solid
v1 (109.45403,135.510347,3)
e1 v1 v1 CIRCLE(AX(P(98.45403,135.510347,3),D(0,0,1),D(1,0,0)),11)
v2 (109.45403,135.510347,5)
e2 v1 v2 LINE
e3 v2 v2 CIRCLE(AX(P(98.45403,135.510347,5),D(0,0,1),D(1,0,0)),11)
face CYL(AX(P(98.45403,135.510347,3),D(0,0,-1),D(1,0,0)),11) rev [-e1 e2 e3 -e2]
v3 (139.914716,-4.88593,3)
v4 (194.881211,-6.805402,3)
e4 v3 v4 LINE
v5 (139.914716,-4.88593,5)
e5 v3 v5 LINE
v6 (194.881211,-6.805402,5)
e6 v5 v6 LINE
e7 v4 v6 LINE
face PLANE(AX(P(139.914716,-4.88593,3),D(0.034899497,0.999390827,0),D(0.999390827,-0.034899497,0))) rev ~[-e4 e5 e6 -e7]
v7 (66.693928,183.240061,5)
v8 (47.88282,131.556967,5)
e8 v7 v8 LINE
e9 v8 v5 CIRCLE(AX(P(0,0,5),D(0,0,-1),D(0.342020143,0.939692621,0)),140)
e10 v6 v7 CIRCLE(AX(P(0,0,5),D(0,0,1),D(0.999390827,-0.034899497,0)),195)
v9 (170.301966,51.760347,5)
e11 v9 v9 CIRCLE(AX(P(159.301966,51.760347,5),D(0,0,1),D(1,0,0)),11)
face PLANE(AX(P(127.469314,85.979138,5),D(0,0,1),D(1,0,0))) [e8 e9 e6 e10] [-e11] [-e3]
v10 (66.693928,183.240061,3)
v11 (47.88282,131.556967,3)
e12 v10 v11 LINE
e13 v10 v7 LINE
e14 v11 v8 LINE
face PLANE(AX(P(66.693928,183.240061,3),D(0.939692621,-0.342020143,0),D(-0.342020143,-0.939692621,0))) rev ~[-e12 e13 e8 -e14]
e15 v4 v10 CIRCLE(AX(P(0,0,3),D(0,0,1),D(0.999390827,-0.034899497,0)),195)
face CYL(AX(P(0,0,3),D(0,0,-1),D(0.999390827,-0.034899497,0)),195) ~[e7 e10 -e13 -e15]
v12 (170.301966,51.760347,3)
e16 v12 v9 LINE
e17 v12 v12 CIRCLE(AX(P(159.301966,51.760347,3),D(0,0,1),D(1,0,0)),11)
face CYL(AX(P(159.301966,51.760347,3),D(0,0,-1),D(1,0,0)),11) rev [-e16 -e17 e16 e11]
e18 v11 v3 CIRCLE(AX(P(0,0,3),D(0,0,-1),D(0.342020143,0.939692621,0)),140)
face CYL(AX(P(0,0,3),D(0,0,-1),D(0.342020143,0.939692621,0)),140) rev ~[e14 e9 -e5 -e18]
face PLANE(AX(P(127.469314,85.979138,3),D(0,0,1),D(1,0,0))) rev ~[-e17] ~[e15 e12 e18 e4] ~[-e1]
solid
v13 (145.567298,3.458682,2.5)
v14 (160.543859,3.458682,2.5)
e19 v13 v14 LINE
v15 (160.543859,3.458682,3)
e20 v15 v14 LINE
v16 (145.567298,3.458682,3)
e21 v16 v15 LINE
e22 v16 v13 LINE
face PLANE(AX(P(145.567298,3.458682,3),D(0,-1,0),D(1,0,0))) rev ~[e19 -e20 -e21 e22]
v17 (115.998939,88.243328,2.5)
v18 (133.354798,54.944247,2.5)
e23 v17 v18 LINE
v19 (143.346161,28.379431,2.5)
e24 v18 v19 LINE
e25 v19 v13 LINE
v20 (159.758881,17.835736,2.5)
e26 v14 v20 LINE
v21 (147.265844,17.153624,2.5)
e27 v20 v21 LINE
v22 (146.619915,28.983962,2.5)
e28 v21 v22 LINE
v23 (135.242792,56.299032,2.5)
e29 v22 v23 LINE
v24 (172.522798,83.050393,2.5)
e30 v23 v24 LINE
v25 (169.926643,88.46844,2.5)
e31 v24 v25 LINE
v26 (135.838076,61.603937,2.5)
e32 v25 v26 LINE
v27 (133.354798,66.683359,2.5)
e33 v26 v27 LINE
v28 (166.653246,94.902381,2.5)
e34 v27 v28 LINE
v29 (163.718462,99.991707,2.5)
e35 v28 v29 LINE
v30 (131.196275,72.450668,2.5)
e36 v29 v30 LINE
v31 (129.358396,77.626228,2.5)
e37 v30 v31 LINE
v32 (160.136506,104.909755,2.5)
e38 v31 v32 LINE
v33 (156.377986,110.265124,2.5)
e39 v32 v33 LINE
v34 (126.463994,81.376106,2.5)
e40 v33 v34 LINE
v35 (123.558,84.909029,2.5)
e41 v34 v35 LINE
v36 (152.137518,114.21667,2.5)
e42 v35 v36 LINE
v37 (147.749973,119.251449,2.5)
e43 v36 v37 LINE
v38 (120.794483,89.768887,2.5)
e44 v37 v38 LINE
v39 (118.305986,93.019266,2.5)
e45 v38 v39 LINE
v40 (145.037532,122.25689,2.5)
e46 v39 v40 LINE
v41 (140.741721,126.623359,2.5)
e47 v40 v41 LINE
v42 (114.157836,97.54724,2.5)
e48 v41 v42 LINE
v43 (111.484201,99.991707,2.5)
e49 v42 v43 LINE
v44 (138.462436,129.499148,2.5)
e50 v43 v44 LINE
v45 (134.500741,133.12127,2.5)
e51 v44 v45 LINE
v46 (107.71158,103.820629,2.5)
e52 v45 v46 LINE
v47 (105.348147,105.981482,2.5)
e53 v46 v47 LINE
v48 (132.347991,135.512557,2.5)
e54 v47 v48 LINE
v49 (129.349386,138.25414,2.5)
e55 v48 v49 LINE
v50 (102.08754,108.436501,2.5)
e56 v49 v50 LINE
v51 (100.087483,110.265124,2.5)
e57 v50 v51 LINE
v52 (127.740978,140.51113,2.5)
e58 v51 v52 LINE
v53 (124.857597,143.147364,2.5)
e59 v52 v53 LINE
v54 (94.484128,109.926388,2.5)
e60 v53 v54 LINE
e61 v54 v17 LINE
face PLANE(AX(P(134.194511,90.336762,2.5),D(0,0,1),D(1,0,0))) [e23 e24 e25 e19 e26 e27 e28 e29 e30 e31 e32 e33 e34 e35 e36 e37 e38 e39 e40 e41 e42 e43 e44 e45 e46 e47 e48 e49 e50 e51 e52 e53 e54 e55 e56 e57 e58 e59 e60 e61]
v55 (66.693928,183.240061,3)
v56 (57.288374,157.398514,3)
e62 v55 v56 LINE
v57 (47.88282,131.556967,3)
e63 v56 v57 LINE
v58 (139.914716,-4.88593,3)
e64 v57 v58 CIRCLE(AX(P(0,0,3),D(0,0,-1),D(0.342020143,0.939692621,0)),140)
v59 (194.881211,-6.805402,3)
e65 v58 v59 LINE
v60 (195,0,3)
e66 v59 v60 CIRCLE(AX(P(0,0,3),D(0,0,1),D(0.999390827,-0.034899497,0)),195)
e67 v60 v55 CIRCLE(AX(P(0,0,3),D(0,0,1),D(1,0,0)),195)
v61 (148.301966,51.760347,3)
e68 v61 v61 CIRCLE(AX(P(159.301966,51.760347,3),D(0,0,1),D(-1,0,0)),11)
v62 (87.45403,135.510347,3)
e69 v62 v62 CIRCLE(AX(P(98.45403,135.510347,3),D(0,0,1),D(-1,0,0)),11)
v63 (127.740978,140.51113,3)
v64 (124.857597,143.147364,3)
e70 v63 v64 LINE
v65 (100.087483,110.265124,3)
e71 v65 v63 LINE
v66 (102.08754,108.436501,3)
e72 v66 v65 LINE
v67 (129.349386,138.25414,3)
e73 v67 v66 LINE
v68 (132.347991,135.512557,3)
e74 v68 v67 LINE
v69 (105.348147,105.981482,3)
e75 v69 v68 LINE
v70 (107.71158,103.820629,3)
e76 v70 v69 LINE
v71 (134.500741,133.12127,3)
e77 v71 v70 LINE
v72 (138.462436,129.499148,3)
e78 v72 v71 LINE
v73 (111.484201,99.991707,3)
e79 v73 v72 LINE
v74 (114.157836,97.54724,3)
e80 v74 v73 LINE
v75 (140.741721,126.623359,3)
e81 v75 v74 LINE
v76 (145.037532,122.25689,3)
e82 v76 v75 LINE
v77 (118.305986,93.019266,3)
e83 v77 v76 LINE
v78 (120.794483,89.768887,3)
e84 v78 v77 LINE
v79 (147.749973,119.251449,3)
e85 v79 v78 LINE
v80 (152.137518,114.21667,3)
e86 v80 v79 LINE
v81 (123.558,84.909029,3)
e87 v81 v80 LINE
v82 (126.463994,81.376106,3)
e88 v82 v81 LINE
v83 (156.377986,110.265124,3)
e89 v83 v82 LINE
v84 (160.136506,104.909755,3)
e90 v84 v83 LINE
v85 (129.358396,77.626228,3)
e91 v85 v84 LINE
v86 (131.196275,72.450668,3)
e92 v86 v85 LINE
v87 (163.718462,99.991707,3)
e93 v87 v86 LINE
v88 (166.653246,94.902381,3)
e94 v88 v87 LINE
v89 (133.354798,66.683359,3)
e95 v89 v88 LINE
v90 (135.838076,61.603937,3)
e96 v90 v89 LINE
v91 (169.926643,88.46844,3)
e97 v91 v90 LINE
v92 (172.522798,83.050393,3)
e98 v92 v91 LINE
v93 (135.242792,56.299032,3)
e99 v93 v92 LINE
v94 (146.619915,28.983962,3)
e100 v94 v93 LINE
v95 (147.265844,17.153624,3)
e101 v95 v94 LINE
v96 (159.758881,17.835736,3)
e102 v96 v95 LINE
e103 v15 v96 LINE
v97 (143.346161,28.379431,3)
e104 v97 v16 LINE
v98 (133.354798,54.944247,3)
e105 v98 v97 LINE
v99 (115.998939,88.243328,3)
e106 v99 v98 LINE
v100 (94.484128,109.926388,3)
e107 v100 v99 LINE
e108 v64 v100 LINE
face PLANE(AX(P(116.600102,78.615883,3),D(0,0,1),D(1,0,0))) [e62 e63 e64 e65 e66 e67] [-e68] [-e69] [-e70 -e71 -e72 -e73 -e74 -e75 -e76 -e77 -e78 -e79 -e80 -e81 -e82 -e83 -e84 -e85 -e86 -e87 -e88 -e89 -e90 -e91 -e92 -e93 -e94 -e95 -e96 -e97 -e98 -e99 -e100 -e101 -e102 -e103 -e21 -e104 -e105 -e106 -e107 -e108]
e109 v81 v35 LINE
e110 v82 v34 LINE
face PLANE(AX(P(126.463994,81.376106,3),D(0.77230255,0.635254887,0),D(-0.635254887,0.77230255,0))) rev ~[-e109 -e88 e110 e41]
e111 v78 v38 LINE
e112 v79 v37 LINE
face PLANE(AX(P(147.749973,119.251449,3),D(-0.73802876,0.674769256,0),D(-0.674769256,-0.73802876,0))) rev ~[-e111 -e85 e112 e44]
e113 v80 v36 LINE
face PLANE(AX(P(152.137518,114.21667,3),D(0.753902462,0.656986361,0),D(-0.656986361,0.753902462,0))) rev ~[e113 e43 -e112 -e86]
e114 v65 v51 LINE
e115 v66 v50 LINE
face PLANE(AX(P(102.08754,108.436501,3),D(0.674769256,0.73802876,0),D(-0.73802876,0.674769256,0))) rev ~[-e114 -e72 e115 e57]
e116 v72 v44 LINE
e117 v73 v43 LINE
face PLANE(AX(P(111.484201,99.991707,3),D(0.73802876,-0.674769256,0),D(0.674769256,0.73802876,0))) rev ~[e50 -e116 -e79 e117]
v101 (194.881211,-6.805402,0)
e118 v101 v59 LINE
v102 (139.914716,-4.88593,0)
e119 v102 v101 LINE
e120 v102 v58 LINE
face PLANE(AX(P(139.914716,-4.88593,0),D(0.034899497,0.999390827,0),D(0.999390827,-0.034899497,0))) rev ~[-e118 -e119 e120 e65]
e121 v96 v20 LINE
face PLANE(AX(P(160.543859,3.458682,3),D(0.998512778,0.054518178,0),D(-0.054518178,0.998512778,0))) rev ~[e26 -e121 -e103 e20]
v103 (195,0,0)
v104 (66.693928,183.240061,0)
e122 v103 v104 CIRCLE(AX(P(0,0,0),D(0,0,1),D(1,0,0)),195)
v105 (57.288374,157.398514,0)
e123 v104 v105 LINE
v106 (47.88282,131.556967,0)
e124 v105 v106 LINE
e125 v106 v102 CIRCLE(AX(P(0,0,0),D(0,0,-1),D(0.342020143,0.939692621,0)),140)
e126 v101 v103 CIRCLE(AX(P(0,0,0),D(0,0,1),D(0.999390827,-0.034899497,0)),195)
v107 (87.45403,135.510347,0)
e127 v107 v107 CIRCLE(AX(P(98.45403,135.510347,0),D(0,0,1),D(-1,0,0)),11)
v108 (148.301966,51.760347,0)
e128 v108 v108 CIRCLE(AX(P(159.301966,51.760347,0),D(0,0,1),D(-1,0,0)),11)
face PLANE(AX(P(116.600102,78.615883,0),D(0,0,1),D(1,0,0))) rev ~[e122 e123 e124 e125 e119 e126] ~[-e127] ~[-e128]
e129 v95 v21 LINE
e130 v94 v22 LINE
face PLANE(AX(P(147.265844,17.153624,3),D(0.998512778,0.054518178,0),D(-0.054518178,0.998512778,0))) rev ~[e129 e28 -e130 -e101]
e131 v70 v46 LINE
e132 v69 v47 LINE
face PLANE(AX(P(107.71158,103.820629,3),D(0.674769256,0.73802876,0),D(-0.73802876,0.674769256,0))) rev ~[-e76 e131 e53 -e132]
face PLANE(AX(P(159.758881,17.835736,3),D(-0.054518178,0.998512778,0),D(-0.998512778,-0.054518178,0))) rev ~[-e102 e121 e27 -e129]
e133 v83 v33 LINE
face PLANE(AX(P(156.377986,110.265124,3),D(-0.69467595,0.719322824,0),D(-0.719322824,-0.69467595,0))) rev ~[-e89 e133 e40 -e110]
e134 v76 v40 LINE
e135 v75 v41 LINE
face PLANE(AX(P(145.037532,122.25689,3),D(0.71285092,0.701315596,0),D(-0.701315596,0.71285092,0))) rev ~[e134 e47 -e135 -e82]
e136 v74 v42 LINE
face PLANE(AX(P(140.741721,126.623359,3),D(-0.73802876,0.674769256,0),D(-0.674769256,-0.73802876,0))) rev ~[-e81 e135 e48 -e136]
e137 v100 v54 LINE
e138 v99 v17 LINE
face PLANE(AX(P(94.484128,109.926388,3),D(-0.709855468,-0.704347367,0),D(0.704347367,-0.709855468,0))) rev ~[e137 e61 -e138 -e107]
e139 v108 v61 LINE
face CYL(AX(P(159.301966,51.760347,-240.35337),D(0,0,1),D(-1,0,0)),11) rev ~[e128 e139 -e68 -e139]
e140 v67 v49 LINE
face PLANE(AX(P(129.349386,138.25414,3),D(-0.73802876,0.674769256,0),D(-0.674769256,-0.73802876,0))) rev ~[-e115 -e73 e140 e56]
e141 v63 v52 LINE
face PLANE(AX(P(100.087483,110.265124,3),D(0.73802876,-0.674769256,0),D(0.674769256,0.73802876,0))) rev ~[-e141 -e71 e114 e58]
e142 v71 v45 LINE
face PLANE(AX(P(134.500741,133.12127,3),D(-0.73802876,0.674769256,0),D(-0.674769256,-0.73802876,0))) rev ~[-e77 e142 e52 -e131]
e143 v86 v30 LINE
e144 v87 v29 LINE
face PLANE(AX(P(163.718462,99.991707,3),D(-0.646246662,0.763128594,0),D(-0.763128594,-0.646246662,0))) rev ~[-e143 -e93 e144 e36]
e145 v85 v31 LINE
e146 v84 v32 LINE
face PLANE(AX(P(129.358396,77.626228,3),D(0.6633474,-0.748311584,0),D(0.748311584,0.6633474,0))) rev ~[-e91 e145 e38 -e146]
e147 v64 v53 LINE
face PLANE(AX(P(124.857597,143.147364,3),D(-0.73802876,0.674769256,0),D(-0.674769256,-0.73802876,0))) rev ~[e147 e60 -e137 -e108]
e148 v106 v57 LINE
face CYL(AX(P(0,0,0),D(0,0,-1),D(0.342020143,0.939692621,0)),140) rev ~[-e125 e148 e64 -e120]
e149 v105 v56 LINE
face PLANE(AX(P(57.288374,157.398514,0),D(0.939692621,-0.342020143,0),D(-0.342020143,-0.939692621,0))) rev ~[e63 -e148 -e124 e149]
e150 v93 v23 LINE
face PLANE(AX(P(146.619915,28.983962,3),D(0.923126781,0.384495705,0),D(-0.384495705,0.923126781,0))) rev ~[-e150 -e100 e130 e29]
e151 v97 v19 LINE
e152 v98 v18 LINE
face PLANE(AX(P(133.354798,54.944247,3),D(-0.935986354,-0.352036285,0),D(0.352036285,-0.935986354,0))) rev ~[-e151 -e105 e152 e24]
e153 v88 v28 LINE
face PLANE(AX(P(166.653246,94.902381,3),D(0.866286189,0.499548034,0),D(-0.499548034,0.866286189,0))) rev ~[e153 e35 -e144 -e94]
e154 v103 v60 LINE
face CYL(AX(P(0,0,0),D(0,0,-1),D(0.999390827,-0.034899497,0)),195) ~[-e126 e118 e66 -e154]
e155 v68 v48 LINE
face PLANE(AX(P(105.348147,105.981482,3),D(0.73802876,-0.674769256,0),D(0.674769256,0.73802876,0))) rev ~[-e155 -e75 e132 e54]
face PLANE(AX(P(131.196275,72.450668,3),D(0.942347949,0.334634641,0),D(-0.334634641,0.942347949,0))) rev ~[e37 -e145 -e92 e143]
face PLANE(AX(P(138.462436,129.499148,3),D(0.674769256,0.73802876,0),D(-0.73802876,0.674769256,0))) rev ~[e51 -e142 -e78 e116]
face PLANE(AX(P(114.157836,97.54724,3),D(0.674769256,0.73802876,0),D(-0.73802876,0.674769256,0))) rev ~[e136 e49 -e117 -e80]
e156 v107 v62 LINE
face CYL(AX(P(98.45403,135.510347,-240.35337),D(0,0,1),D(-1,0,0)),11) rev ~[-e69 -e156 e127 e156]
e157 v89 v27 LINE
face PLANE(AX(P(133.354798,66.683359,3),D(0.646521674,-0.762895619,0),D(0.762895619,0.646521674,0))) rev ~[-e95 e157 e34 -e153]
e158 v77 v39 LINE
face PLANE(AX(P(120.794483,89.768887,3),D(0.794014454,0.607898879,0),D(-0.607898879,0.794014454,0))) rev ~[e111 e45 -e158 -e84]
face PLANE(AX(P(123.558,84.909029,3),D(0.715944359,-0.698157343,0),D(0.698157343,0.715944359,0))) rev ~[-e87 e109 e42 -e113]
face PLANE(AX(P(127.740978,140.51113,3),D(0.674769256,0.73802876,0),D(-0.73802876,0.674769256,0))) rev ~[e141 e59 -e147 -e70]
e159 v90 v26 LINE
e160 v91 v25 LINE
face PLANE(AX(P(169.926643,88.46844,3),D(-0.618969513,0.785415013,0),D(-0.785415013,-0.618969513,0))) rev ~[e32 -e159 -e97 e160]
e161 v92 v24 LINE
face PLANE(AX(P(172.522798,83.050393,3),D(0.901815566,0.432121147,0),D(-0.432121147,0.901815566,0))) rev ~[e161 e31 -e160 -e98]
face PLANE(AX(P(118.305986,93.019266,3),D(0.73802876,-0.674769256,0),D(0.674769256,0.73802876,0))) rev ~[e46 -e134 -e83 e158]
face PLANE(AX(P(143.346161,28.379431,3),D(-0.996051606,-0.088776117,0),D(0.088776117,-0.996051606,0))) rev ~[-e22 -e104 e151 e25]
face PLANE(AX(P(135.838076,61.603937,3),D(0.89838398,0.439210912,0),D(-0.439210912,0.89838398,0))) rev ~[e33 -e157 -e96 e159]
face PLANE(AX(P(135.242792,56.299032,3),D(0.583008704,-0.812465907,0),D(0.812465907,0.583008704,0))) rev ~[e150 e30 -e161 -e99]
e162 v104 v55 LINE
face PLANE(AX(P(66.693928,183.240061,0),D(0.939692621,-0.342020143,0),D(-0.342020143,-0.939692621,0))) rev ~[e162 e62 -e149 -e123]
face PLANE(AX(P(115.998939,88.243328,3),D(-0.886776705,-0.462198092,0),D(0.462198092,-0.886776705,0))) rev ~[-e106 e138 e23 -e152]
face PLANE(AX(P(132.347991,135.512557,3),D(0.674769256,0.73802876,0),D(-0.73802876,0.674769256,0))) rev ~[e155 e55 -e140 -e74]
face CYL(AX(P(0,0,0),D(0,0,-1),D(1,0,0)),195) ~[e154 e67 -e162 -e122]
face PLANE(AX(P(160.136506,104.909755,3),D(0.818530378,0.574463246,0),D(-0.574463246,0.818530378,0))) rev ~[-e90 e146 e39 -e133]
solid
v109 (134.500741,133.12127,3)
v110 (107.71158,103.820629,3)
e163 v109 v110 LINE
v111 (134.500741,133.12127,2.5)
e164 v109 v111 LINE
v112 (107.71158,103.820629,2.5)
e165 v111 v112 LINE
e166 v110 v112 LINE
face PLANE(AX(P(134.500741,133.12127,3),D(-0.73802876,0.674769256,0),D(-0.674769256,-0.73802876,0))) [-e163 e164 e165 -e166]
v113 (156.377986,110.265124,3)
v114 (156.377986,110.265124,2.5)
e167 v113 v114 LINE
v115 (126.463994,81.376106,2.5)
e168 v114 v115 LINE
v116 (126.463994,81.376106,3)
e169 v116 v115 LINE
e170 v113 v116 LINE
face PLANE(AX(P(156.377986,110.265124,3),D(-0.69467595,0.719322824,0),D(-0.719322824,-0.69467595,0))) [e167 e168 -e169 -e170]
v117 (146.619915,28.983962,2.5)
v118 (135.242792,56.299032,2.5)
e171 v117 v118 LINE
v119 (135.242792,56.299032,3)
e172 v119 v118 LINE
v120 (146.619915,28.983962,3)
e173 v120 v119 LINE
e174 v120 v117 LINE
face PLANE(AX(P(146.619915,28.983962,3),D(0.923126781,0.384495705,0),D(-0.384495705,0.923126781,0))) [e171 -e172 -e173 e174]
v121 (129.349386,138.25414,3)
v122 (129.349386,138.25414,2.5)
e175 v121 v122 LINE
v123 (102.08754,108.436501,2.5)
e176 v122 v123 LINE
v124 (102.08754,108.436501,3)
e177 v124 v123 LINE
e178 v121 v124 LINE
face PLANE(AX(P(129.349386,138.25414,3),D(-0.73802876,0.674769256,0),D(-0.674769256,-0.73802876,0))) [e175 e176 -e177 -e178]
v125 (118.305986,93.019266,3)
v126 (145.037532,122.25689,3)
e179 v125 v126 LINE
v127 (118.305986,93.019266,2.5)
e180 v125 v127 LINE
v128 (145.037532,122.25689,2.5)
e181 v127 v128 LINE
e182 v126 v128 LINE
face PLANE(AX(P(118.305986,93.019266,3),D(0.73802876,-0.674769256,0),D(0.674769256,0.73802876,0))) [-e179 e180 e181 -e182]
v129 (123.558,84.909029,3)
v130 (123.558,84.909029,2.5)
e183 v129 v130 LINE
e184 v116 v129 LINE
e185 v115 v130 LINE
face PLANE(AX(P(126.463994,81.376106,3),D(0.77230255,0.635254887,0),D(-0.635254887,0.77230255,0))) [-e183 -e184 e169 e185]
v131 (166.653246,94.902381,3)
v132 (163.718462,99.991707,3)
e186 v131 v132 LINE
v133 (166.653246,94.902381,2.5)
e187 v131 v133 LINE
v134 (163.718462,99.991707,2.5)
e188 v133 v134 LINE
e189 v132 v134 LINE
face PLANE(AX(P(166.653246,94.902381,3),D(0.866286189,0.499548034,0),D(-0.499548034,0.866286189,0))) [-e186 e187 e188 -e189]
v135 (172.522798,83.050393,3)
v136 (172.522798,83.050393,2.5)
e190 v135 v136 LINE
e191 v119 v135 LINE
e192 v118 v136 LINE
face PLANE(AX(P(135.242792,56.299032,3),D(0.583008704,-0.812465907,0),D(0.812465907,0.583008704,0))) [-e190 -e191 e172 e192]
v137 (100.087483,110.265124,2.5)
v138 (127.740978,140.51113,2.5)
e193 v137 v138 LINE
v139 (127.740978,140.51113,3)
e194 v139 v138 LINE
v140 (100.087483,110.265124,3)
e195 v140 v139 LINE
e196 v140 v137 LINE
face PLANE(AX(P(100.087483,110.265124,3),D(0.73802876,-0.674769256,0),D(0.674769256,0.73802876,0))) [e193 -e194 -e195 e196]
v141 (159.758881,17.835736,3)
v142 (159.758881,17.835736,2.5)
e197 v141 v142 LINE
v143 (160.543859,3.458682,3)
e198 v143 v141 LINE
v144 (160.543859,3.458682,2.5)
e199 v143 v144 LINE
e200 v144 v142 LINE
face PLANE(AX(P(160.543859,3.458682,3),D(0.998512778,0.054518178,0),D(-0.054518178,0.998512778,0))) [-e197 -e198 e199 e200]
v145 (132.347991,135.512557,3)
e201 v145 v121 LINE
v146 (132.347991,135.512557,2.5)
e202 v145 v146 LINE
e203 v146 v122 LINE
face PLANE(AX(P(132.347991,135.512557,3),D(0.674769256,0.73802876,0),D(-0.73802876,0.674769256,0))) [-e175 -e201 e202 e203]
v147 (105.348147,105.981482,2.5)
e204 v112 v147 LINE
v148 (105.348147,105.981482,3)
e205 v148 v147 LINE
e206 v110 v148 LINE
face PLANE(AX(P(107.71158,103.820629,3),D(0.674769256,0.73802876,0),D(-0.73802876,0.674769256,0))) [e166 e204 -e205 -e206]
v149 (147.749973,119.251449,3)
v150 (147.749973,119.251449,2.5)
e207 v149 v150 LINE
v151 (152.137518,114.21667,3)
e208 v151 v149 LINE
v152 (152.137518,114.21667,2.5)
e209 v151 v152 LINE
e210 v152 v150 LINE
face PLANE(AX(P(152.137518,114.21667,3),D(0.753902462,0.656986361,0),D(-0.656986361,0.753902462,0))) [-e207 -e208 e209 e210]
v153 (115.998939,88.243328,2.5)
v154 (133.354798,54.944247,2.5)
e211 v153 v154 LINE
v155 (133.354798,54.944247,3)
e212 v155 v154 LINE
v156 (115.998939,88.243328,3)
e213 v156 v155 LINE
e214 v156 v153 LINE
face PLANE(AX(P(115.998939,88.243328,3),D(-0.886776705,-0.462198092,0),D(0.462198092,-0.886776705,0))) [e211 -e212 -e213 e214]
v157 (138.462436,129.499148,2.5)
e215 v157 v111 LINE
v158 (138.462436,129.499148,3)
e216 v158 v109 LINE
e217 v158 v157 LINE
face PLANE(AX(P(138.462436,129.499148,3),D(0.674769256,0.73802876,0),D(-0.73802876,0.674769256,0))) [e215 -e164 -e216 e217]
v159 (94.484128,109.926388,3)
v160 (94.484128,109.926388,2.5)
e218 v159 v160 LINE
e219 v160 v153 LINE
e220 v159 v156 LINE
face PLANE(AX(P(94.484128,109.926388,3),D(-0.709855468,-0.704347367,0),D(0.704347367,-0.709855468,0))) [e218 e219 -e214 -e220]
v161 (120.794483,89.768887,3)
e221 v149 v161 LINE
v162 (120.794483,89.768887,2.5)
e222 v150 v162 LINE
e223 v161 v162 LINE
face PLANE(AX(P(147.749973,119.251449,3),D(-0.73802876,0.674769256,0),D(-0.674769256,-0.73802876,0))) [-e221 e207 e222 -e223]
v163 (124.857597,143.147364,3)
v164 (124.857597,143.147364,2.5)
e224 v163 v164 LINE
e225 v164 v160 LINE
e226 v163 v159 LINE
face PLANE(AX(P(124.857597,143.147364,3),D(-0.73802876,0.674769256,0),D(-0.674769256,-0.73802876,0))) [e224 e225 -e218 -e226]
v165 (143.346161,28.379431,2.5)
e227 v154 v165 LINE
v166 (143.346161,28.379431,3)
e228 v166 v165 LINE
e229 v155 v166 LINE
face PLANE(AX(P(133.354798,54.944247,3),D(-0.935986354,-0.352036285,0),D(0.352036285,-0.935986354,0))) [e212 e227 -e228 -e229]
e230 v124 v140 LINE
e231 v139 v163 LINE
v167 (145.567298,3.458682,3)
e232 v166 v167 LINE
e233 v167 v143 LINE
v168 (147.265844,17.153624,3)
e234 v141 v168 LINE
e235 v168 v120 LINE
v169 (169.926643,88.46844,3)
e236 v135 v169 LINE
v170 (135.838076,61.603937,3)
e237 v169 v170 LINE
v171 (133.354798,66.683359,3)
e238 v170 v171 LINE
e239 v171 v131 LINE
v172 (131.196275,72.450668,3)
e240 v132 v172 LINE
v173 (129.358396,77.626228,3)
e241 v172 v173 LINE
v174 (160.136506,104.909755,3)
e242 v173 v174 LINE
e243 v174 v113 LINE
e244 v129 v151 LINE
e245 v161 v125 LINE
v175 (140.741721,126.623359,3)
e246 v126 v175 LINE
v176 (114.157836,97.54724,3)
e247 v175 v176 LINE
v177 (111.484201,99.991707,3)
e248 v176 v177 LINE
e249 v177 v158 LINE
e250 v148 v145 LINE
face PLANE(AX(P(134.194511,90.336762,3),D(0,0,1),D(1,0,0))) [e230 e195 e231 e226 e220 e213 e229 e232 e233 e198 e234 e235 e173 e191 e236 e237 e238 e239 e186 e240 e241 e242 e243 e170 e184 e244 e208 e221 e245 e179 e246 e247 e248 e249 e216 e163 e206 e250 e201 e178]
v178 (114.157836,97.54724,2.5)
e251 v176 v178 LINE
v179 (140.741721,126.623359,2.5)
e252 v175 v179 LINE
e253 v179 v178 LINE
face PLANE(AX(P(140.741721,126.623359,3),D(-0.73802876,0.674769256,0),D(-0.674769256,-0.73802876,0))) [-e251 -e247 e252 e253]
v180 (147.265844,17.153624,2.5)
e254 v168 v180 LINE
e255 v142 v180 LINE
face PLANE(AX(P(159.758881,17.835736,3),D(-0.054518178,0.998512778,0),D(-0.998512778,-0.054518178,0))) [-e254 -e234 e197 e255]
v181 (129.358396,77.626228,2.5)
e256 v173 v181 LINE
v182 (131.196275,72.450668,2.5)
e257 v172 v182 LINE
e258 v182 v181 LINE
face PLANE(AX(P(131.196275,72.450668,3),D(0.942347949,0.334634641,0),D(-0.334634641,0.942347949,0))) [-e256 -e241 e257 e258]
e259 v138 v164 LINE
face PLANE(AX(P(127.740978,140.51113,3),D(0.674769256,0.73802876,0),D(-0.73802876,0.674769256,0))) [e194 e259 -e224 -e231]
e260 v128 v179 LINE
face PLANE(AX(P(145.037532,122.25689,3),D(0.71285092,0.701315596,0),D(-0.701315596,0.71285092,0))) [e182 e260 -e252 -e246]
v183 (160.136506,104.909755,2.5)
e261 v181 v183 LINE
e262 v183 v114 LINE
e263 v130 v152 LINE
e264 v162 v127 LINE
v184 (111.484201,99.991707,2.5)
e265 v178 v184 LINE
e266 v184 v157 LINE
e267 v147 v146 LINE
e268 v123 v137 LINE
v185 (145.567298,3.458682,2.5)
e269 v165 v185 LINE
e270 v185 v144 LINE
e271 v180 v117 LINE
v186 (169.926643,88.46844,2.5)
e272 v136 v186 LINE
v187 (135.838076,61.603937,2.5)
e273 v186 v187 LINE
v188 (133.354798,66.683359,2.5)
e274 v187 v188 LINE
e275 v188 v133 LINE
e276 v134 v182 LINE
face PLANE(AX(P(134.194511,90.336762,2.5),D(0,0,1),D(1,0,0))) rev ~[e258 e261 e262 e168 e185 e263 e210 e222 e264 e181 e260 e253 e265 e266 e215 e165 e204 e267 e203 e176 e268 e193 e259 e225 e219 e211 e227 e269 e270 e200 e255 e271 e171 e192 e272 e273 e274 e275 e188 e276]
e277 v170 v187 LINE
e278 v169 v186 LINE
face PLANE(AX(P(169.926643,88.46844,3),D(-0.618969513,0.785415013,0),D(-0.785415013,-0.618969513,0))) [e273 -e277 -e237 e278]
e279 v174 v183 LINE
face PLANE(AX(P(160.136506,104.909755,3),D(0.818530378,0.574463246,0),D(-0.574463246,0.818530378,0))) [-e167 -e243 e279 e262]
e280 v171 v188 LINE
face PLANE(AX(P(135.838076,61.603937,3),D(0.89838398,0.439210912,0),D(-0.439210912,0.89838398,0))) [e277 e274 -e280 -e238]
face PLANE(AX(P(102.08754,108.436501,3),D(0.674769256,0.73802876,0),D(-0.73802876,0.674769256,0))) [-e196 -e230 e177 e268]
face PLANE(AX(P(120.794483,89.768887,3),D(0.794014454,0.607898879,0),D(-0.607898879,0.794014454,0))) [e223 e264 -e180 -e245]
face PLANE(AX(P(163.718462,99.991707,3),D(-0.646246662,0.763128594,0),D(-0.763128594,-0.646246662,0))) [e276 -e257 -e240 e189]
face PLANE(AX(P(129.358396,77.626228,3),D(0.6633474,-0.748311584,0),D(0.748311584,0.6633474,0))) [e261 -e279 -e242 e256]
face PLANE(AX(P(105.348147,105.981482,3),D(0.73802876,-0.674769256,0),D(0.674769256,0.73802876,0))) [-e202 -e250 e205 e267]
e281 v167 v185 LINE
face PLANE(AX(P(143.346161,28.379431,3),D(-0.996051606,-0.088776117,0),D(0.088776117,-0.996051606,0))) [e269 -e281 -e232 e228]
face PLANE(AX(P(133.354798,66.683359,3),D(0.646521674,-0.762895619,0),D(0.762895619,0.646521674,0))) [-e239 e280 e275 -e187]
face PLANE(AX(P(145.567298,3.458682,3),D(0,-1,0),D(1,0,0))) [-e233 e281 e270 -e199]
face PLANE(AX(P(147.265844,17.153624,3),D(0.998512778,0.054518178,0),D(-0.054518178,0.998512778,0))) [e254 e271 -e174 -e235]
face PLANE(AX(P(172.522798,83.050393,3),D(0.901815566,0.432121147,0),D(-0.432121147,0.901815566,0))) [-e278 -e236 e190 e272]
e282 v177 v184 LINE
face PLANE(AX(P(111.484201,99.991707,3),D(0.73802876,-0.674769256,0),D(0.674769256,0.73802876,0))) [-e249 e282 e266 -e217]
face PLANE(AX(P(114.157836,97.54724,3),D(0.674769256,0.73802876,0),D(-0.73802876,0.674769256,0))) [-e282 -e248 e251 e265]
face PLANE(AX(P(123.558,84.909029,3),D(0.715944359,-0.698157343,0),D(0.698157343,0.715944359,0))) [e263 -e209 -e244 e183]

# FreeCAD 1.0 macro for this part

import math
import FreeCAD as App
import Part
import Sketcher

V = App.Vector
Q = App.Units.Quantity


def add_polygon(sketch, points):
    """Adds a closed chain of lines whose ends are joined by coincident constraints."""
    first, n = sketch.GeometryCount, len(points)
    for a, b in zip(points, points[1:] + points[:1]):
        sketch.addGeometry(Part.LineSegment(App.Vector(*a, 0), App.Vector(*b, 0)), False)
    for i in range(n):
        sketch.addConstraint(Sketcher.Constraint("Coincident", first + i, 2, first + (i + 1) % n, 1))

doc = App.newDocument("Part")
body = doc.addObject("PartDesign::Body", "Body")

# Sketch on XY plane
sketch1 = doc.addObject("Sketcher::SketchObject", "Sketch")
body.addObject(sketch1)
sketch1.AttachmentSupport = (doc.XY_Plane, [""])
sketch1.MapMode = "FlatFace"
sketch1.addGeometry(Part.LineSegment(V(57, 157, 0), V(48, 132, 0)), False)
sketch1.addGeometry(Part.ArcOfCircle(Part.Circle(V(0, 0, 0), V(0, 0, 1), 140), math.radians(-2), math.radians(70)), False)
sketch1.addGeometry(Part.LineSegment(V(140, -5, 0), V(195, -7, 0)), False)
sketch1.addGeometry(Part.ArcOfCircle(Part.Circle(V(0, 0, 0), V(0, 0, 1), 195), math.radians(-2), math.radians(0)), False)
sketch1.addGeometry(Part.ArcOfCircle(Part.Circle(V(0, 0, 0), V(0, 0, 1), 195), math.radians(0), math.radians(70)), False)
sketch1.addGeometry(Part.LineSegment(V(67, 183, 0), V(57, 157, 0)), False)
sketch1.addConstraint(Sketcher.Constraint("Coincident", 0, 2, 1, 2))
sketch1.addConstraint(Sketcher.Constraint("Coincident", 1, 1, 2, 1))
sketch1.addConstraint(Sketcher.Constraint("Coincident", 2, 2, 3, 1))
sketch1.addConstraint(Sketcher.Constraint("Tangent", 3, 2, 4, 1))
sketch1.addConstraint(Sketcher.Constraint("Coincident", 4, 2, 5, 1))
sketch1.addConstraint(Sketcher.Constraint("Coincident", 5, 2, 0, 1))
sketch1.addConstraint(Sketcher.Constraint("Coincident", 1, 3, -1, 1))
sketch1.addConstraint(Sketcher.Constraint("Coincident", 3, 3, -1, 1))
sketch1.addConstraint(Sketcher.Constraint("Equal", 3, 4))
sketch1.addConstraint(Sketcher.Constraint("PointOnObject", 3, 2, -1))
sketch1.addConstraint(Sketcher.Constraint("Parallel", 0, 5))
sketch1.addConstraint(Sketcher.Constraint("Equal", 0, 5))
sketch1.addConstraint(Sketcher.Constraint("Radius", 1, 140.0))
sketch1.addConstraint(Sketcher.Constraint("Radius", 3, 195.0))
sketch1.addConstraint(Sketcher.Constraint("Angle", 0, Q("-110 deg")))
sketch1.addConstraint(Sketcher.Constraint("Angle", 2, Q("-2 deg")))
sketch1.addConstraint(Sketcher.Constraint("DistanceY", 2, 2, -1, 1, 6.805402))
sketch1.addConstraint(Sketcher.Constraint("DistanceX", -1, 1, 0, 2, 47.88282))
pad1 = doc.addObject("PartDesign::Pad", "Pad")
body.addObject(pad1)
pad1.Profile = sketch1
pad1.Length = 3

# Sketch on XY plane
sketch2 = doc.addObject("Sketcher::SketchObject", "Sketch001")
body.addObject(sketch2)
sketch2.AttachmentSupport = (doc.XY_Plane, [""])
sketch2.MapMode = "FlatFace"
sketch2.addGeometry(Part.Circle(V(98, 136, 0), V(0, 0, 1), 11), False)
sketch2.addGeometry(Part.Circle(V(159, 52, 0), V(0, 0, 1), 11), False)
sketch2.addGeometry(Part.Circle(V(159, -52, 0), V(0, 0, 1), 11), False)
sketch2.addConstraint(Sketcher.Constraint("Equal", 0, 1))
sketch2.addConstraint(Sketcher.Constraint("Equal", 1, 2))
sketch2.addConstraint(Sketcher.Constraint("Symmetric", 1, 3, 2, 3, -1))
sketch2.addConstraint(Sketcher.Constraint("Diameter", 0, 22.0))
sketch2.addConstraint(Sketcher.Constraint("DistanceY", 1, 3, 0, 3, 83.75))
sketch2.addConstraint(Sketcher.Constraint("DistanceX", -1, 1, 0, 3, 98.45403))
sketch2.addConstraint(Sketcher.Constraint("DistanceY", -1, 1, 0, 3, 135.510347))
sketch2.addConstraint(Sketcher.Constraint("DistanceX", -1, 1, 1, 3, 159.301966))
doc.recompute()
hole = doc.addObject("PartDesign::Hole", "Hole")
body.addObject(hole)
hole.Profile = sketch2
hole.ThreadType = "None"
hole.Diameter = 22
hole.DepthType = "ThroughAll"
hole.Reversed = True

# Sketch on XY plane
sketch3 = doc.addObject("Sketcher::SketchObject", "Sketch002")
body.addObject(sketch3)
sketch3.AttachmentSupport = (doc.XY_Plane, [""])
sketch3.MapMode = "FlatFace"
sketch3.AttachmentOffset = App.Placement(V(0, 0, 3), App.Rotation())
add_polygon(sketch3, [(124.9, 143.1), (94.5, 109.9), (116, 88.2), (133.4, 54.9), (143.3, 28.4), (145.6, 3.5), (160.5, 3.5), (159.8, 17.8), (147.3, 17.2), (146.6, 29), (135.2, 56.3), (172.5, 83.1), (169.9, 88.5), (135.8, 61.6), (133.4, 66.7), (166.7, 94.9), (163.7, 100), (131.2, 72.5), (129.4, 77.6), (160.1, 104.9), (156.4, 110.3), (126.5, 81.4), (123.6, 84.9), (152.1, 114.2), (147.7, 119.3), (120.8, 89.8), (118.3, 93), (145, 122.3), (140.7, 126.6), (114.2, 97.5), (111.5, 100), (138.5, 129.5), (134.5, 133.1), (107.7, 103.8), (105.3, 106), (132.3, 135.5), (129.3, 138.3), (102.1, 108.4), (100.1, 110.3), (127.7, 140.5)])  # lines 0-39
sketch3.addConstraint(Sketcher.Constraint("Horizontal", 5))
sketch3.addConstraint(Sketcher.Constraint("Perpendicular", 6, 7))
sketch3.addConstraint(Sketcher.Constraint("Perpendicular", 7, 8))
sketch3.addConstraint(Sketcher.Constraint("Parallel", 0, 24))
sketch3.addConstraint(Sketcher.Constraint("Parallel", 24, 26))
sketch3.addConstraint(Sketcher.Constraint("Parallel", 26, 28))
sketch3.addConstraint(Sketcher.Constraint("Perpendicular", 28, 29))
sketch3.addConstraint(Sketcher.Constraint("Perpendicular", 29, 30))
sketch3.addConstraint(Sketcher.Constraint("Perpendicular", 30, 31))
sketch3.addConstraint(Sketcher.Constraint("Perpendicular", 31, 32))
sketch3.addConstraint(Sketcher.Constraint("Perpendicular", 32, 33))
sketch3.addConstraint(Sketcher.Constraint("Perpendicular", 33, 34))
sketch3.addConstraint(Sketcher.Constraint("Perpendicular", 34, 35))
sketch3.addConstraint(Sketcher.Constraint("Perpendicular", 35, 36))
sketch3.addConstraint(Sketcher.Constraint("Perpendicular", 36, 37))
sketch3.addConstraint(Sketcher.Constraint("Perpendicular", 37, 38))
sketch3.addConstraint(Sketcher.Constraint("Perpendicular", 38, 39))
sketch3.addConstraint(Sketcher.Constraint("Horizontal", 15, 2, 29, 2))
sketch3.addConstraint(Sketcher.Constraint("Horizontal", 19, 2, 37, 2))
sketch3.addConstraint(Sketcher.Constraint("Vertical", 2, 2, 13, 2))
sketch3.addConstraint(Sketcher.Constraint("Distance", 37, 2.709998))
sketch3.addConstraint(Sketcher.Constraint("Distance", 28, 39.397))
sketch3.addConstraint(Sketcher.Constraint("DistanceX", -1, 1, 21, 2, 123.558))
sketch3.addConstraint(Sketcher.Constraint("DistanceX", 2, 2, 10, 2, 39.168))
sketch3.addConstraint(Sketcher.Constraint("DistanceX", 5, 1, 5, 2, 14.976561))
sketch3.addConstraint(Sketcher.Constraint("DistanceX", -1, 1, 10, 2, 172.522798))
sketch3.addConstraint(Sketcher.Constraint("DistanceX", -1, 1, 29, 2, 111.484201))
sketch3.addConstraint(Sketcher.Constraint("DistanceY", -1, 1, 36, 2, 108.436501))
sketch3.addConstraint(Sketcher.Constraint("DistanceX", 2, 2, 4, 2, 12.2125))
sketch3.addConstraint(Sketcher.Constraint("DistanceX", 3, 2, 5, 2, 17.197698))
sketch3.addConstraint(Sketcher.Constraint("DistanceY", 3, 2, 9, 2, 27.919601))
sketch3.addConstraint(Sketcher.Constraint("DistanceX", 16, 2, 12, 2, 4.641801))
sketch3.addConstraint(Sketcher.Constraint("DistanceY", 17, 2, 1, 2, 10.6171))
sketch3.addConstraint(Sketcher.Constraint("DistanceX", 20, 2, 17, 2, 2.894402))
sketch3.addConstraint(Sketcher.Constraint("DistanceY", 21, 2, 1, 2, 3.334299))
sketch3.addConstraint(Sketcher.Constraint("DistanceY", 23, 2, 30, 2, 10.247698))
sketch3.addConstraint(Sketcher.Constraint("DistanceY", 22, 2, 31, 2, 18.904599))
sketch3.addConstraint(Sketcher.Constraint("DistanceY", 1, 2, 32, 2, 15.577301))
sketch3.addConstraint(Sketcher.Constraint("DistanceY", 27, 2, 34, 2, 8.889198))
sketch3.addConstraint(Sketcher.Constraint("Distance", 0, 45.013119))
sketch3.addConstraint(Sketcher.Constraint("Distance", 1, 30.545739))
sketch3.addConstraint(Sketcher.Constraint("Distance", 6, 14.398468))
sketch3.addConstraint(Sketcher.Constraint("Distance", 8, 11.847958))
sketch3.addConstraint(Sketcher.Constraint("Distance", 10, 45.88501))
sketch3.addConstraint(Sketcher.Constraint("Distance", 12, 43.40198))
sketch3.addConstraint(Sketcher.Constraint("Distance", 14, 43.647449))
sketch3.addConstraint(Sketcher.Constraint("Distance", 22, 40.935641))
sketch3.addConstraint(Sketcher.Constraint("Distance", 23, 6.67829))
sketch3.addConstraint(Sketcher.Constraint("Distance", 27, 6.125361))
sketch3.addConstraint(Sketcher.Constraint("Distance", 29, 3.622671))
sketch3.addConstraint(Sketcher.Constraint("Distance", 31, 5.367942))
sketch3.addConstraint(Sketcher.Constraint("Distance", 33, 3.202358))
sketch3.addConstraint(Sketcher.Constraint("Distance", 36, 40.401731))
sketch3.addConstraint(Sketcher.Constraint("Distance", 38, 40.98215))
sketch3.addConstraint(Sketcher.Constraint("Distance", 39, 3.906868))
sketch3.addConstraint(Sketcher.Constraint("DistanceX", -1, 1, 0, 2, 94.484128))
sketch3.addConstraint(Sketcher.Constraint("DistanceX", -1, 1, 1, 2, 115.998939))
sketch3.addConstraint(Sketcher.Constraint("DistanceY", -1, 1, 1, 2, 88.243328))
sketch3.addConstraint(Sketcher.Constraint("DistanceY", -1, 1, 3, 2, 28.379431))
sketch3.addConstraint(Sketcher.Constraint("DistanceY", -1, 1, 4, 2, 3.458682))
sketch3.addConstraint(Sketcher.Constraint("DistanceX", -1, 1, 6, 2, 159.758881))
sketch3.addConstraint(Sketcher.Constraint("DistanceX", -1, 1, 9, 2, 135.242792))
sketch3.addConstraint(Sketcher.Constraint("DistanceY", -1, 1, 11, 2, 88.46844))
sketch3.addConstraint(Sketcher.Constraint("DistanceY", -1, 1, 13, 2, 66.683359))
sketch3.addConstraint(Sketcher.Constraint("DistanceY", -1, 1, 14, 2, 94.902381))
sketch3.addConstraint(Sketcher.Constraint("DistanceX", -1, 1, 15, 2, 163.718462))
sketch3.addConstraint(Sketcher.Constraint("DistanceY", -1, 1, 22, 2, 114.21667))
sketch3.addConstraint(Sketcher.Constraint("DistanceX", -1, 1, 26, 2, 145.037532))
sketch3.addConstraint(Sketcher.Constraint("DistanceY", 2, 2, 1, 2, 33.299081))
sketch3.addConstraint(Sketcher.Constraint("DistanceY", 3, 2, 8, 2, 0.604531))
sketch3.addConstraint(Sketcher.Constraint("DistanceX", 9, 2, 11, 2, 34.683852))
sketch3.addConstraint(Sketcher.Constraint("DistanceX", 2, 2, 12, 2, 2.483279))
sketch3.addConstraint(Sketcher.Constraint("DistanceY", 13, 2, 16, 2, 5.767308))
sketch3.addConstraint(Sketcher.Constraint("DistanceX", 17, 2, 16, 2, 1.837879))
sketch3.addConstraint(Sketcher.Constraint("DistanceY", 15, 2, 18, 2, 4.918048))
sketch3.addConstraint(Sketcher.Constraint("DistanceX", 18, 2, 14, 2, 6.51674))
sketch3.addConstraint(Sketcher.Constraint("DistanceX", 19, 2, 18, 2, 3.75852))
sketch3.addConstraint(Sketcher.Constraint("DistanceY", 12, 2, 20, 2, 19.772168))
sketch3.addConstraint(Sketcher.Constraint("DistanceY", 1, 2, 24, 2, 1.525559))
sketch3.addConstraint(Sketcher.Constraint("DistanceY", 24, 2, 25, 2, 3.25038))
pocket1 = doc.addObject("PartDesign::Pocket", "Pocket")
body.addObject(pocket1)
pocket1.Profile = sketch3
pocket1.Length = 0.5
body2 = doc.addObject("PartDesign::Body", "Body001")

# Sketch on XY plane
sketch4 = doc.addObject("Sketcher::SketchObject", "Sketch003")
body2.addObject(sketch4)
sketch4.AttachmentSupport = (doc.getObject("XY_Plane001"), [""])
sketch4.MapMode = "FlatFace"
sketch4.AttachmentOffset = App.Placement(V(0, 0, 3), App.Rotation())
add_polygon(sketch4, [(124.9, 143.1), (94.5, 109.9), (116, 88.2), (133.4, 54.9), (143.3, 28.4), (145.6, 3.5), (160.5, 3.5), (159.8, 17.8), (147.3, 17.2), (146.6, 29), (135.2, 56.3), (172.5, 83.1), (169.9, 88.5), (135.8, 61.6), (133.4, 66.7), (166.7, 94.9), (163.7, 100), (131.2, 72.5), (129.4, 77.6), (160.1, 104.9), (156.4, 110.3), (126.5, 81.4), (123.6, 84.9), (152.1, 114.2), (147.7, 119.3), (120.8, 89.8), (118.3, 93), (145, 122.3), (140.7, 126.6), (114.2, 97.5), (111.5, 100), (138.5, 129.5), (134.5, 133.1), (107.7, 103.8), (105.3, 106), (132.3, 135.5), (129.3, 138.3), (102.1, 108.4), (100.1, 110.3), (127.7, 140.5)])  # lines 0-39
sketch4.addConstraint(Sketcher.Constraint("Horizontal", 5))
sketch4.addConstraint(Sketcher.Constraint("Perpendicular", 6, 7))
sketch4.addConstraint(Sketcher.Constraint("Perpendicular", 7, 8))
sketch4.addConstraint(Sketcher.Constraint("Parallel", 0, 24))
sketch4.addConstraint(Sketcher.Constraint("Parallel", 24, 26))
sketch4.addConstraint(Sketcher.Constraint("Parallel", 26, 28))
sketch4.addConstraint(Sketcher.Constraint("Perpendicular", 28, 29))
sketch4.addConstraint(Sketcher.Constraint("Perpendicular", 29, 30))
sketch4.addConstraint(Sketcher.Constraint("Perpendicular", 30, 31))
sketch4.addConstraint(Sketcher.Constraint("Perpendicular", 31, 32))
sketch4.addConstraint(Sketcher.Constraint("Perpendicular", 32, 33))
sketch4.addConstraint(Sketcher.Constraint("Perpendicular", 33, 34))
sketch4.addConstraint(Sketcher.Constraint("Perpendicular", 34, 35))
sketch4.addConstraint(Sketcher.Constraint("Perpendicular", 35, 36))
sketch4.addConstraint(Sketcher.Constraint("Perpendicular", 36, 37))
sketch4.addConstraint(Sketcher.Constraint("Perpendicular", 37, 38))
sketch4.addConstraint(Sketcher.Constraint("Perpendicular", 38, 39))
sketch4.addConstraint(Sketcher.Constraint("Horizontal", 15, 2, 29, 2))
sketch4.addConstraint(Sketcher.Constraint("Horizontal", 19, 2, 37, 2))
sketch4.addConstraint(Sketcher.Constraint("Vertical", 2, 2, 13, 2))
sketch4.addConstraint(Sketcher.Constraint("Distance", 37, 2.709998))
sketch4.addConstraint(Sketcher.Constraint("Distance", 28, 39.397))
sketch4.addConstraint(Sketcher.Constraint("DistanceX", -1, 1, 21, 2, 123.558))
sketch4.addConstraint(Sketcher.Constraint("DistanceX", 2, 2, 10, 2, 39.168))
sketch4.addConstraint(Sketcher.Constraint("DistanceX", 5, 1, 5, 2, 14.976561))
sketch4.addConstraint(Sketcher.Constraint("DistanceX", -1, 1, 10, 2, 172.522798))
sketch4.addConstraint(Sketcher.Constraint("DistanceX", -1, 1, 29, 2, 111.484201))
sketch4.addConstraint(Sketcher.Constraint("DistanceY", -1, 1, 36, 2, 108.436501))
sketch4.addConstraint(Sketcher.Constraint("DistanceX", 2, 2, 4, 2, 12.2125))
sketch4.addConstraint(Sketcher.Constraint("DistanceX", 3, 2, 5, 2, 17.197698))
sketch4.addConstraint(Sketcher.Constraint("DistanceY", 3, 2, 9, 2, 27.919601))
sketch4.addConstraint(Sketcher.Constraint("DistanceX", 16, 2, 12, 2, 4.641801))
sketch4.addConstraint(Sketcher.Constraint("DistanceY", 17, 2, 1, 2, 10.6171))
sketch4.addConstraint(Sketcher.Constraint("DistanceX", 20, 2, 17, 2, 2.894402))
sketch4.addConstraint(Sketcher.Constraint("DistanceY", 21, 2, 1, 2, 3.334299))
sketch4.addConstraint(Sketcher.Constraint("DistanceY", 23, 2, 30, 2, 10.247698))
sketch4.addConstraint(Sketcher.Constraint("DistanceY", 22, 2, 31, 2, 18.904599))
sketch4.addConstraint(Sketcher.Constraint("DistanceY", 1, 2, 32, 2, 15.577301))
sketch4.addConstraint(Sketcher.Constraint("DistanceY", 27, 2, 34, 2, 8.889198))
sketch4.addConstraint(Sketcher.Constraint("Distance", 0, 45.013119))
sketch4.addConstraint(Sketcher.Constraint("Distance", 1, 30.545739))
sketch4.addConstraint(Sketcher.Constraint("Distance", 6, 14.398468))
sketch4.addConstraint(Sketcher.Constraint("Distance", 8, 11.847958))
sketch4.addConstraint(Sketcher.Constraint("Distance", 10, 45.88501))
sketch4.addConstraint(Sketcher.Constraint("Distance", 12, 43.40198))
sketch4.addConstraint(Sketcher.Constraint("Distance", 14, 43.647449))
sketch4.addConstraint(Sketcher.Constraint("Distance", 22, 40.935641))
sketch4.addConstraint(Sketcher.Constraint("Distance", 23, 6.67829))
sketch4.addConstraint(Sketcher.Constraint("Distance", 27, 6.125361))
sketch4.addConstraint(Sketcher.Constraint("Distance", 29, 3.622671))
sketch4.addConstraint(Sketcher.Constraint("Distance", 31, 5.367942))
sketch4.addConstraint(Sketcher.Constraint("Distance", 33, 3.202358))
sketch4.addConstraint(Sketcher.Constraint("Distance", 36, 40.401731))
sketch4.addConstraint(Sketcher.Constraint("Distance", 38, 40.98215))
sketch4.addConstraint(Sketcher.Constraint("Distance", 39, 3.906868))
sketch4.addConstraint(Sketcher.Constraint("DistanceX", -1, 1, 0, 2, 94.484128))
sketch4.addConstraint(Sketcher.Constraint("DistanceX", -1, 1, 1, 2, 115.998939))
sketch4.addConstraint(Sketcher.Constraint("DistanceY", -1, 1, 1, 2, 88.243328))
sketch4.addConstraint(Sketcher.Constraint("DistanceY", -1, 1, 3, 2, 28.379431))
sketch4.addConstraint(Sketcher.Constraint("DistanceY", -1, 1, 4, 2, 3.458682))
sketch4.addConstraint(Sketcher.Constraint("DistanceX", -1, 1, 6, 2, 159.758881))
sketch4.addConstraint(Sketcher.Constraint("DistanceX", -1, 1, 9, 2, 135.242792))
sketch4.addConstraint(Sketcher.Constraint("DistanceY", -1, 1, 11, 2, 88.46844))
sketch4.addConstraint(Sketcher.Constraint("DistanceY", -1, 1, 13, 2, 66.683359))
sketch4.addConstraint(Sketcher.Constraint("DistanceY", -1, 1, 14, 2, 94.902381))
sketch4.addConstraint(Sketcher.Constraint("DistanceX", -1, 1, 15, 2, 163.718462))
sketch4.addConstraint(Sketcher.Constraint("DistanceY", -1, 1, 22, 2, 114.21667))
sketch4.addConstraint(Sketcher.Constraint("DistanceX", -1, 1, 26, 2, 145.037532))
sketch4.addConstraint(Sketcher.Constraint("DistanceY", 2, 2, 1, 2, 33.299081))
sketch4.addConstraint(Sketcher.Constraint("DistanceY", 3, 2, 8, 2, 0.604531))
sketch4.addConstraint(Sketcher.Constraint("DistanceX", 9, 2, 11, 2, 34.683852))
sketch4.addConstraint(Sketcher.Constraint("DistanceX", 2, 2, 12, 2, 2.483279))
sketch4.addConstraint(Sketcher.Constraint("DistanceY", 13, 2, 16, 2, 5.767308))
sketch4.addConstraint(Sketcher.Constraint("DistanceX", 17, 2, 16, 2, 1.837879))
sketch4.addConstraint(Sketcher.Constraint("DistanceY", 15, 2, 18, 2, 4.918048))
sketch4.addConstraint(Sketcher.Constraint("DistanceX", 18, 2, 14, 2, 6.51674))
sketch4.addConstraint(Sketcher.Constraint("DistanceX", 19, 2, 18, 2, 3.75852))
sketch4.addConstraint(Sketcher.Constraint("DistanceY", 12, 2, 20, 2, 19.772168))
sketch4.addConstraint(Sketcher.Constraint("DistanceY", 1, 2, 24, 2, 1.525559))
sketch4.addConstraint(Sketcher.Constraint("DistanceY", 24, 2, 25, 2, 3.25038))
pad2 = doc.addObject("PartDesign::Pad", "Pad001")
body2.addObject(pad2)
pad2.Profile = sketch4
pad2.Length = 0.5
pad2.Reversed = True
body3 = doc.addObject("PartDesign::Body", "Body002")

# Sketch on XY plane
sketch5 = doc.addObject("Sketcher::SketchObject", "Sketch004")
body3.addObject(sketch5)
sketch5.AttachmentSupport = (doc.getObject("XY_Plane002"), [""])
sketch5.MapMode = "FlatFace"
sketch5.AttachmentOffset = App.Placement(V(0, 0, 3), App.Rotation())
sketch5.addGeometry(Part.LineSegment(V(67, 183, 0), V(48, 132, 0)), False)
sketch5.addGeometry(Part.ArcOfCircle(Part.Circle(V(0, 0, 0), V(0, 0, 1), 140), math.radians(-2), math.radians(70)), False)
sketch5.addGeometry(Part.LineSegment(V(140, -5, 0), V(195, -7, 0)), False)
sketch5.addGeometry(Part.ArcOfCircle(Part.Circle(V(0, 0, 0), V(0, 0, 1), 195), math.radians(-2), math.radians(70)), False)
sketch5.addGeometry(Part.Circle(V(159, 52, 0), V(0, 0, 1), 11), False)
sketch5.addGeometry(Part.Circle(V(98, 136, 0), V(0, 0, 1), 11), False)
sketch5.addConstraint(Sketcher.Constraint("Coincident", 0, 2, 1, 2))
sketch5.addConstraint(Sketcher.Constraint("Coincident", 1, 1, 2, 1))
sketch5.addConstraint(Sketcher.Constraint("Coincident", 2, 2, 3, 1))
sketch5.addConstraint(Sketcher.Constraint("Coincident", 3, 2, 0, 1))
sketch5.addConstraint(Sketcher.Constraint("Coincident", 1, 3, -1, 1))
sketch5.addConstraint(Sketcher.Constraint("Coincident", 3, 3, -1, 1))
sketch5.addConstraint(Sketcher.Constraint("Equal", 4, 5))
sketch5.addConstraint(Sketcher.Constraint("Diameter", 4, 22.0))
sketch5.addConstraint(Sketcher.Constraint("Radius", 1, 140.0))
sketch5.addConstraint(Sketcher.Constraint("Radius", 3, 195.0))
sketch5.addConstraint(Sketcher.Constraint("Angle", 0, Q("-110 deg")))
sketch5.addConstraint(Sketcher.Constraint("Angle", 2, Q("-2 deg")))
sketch5.addConstraint(Sketcher.Constraint("DistanceY", 4, 3, 5, 3, 83.75))
sketch5.addConstraint(Sketcher.Constraint("DistanceY", 2, 2, -1, 1, 6.805402))
sketch5.addConstraint(Sketcher.Constraint("DistanceX", 3, 2, 5, 3, 31.760102))
sketch5.addConstraint(Sketcher.Constraint("DistanceX", -1, 1, 5, 3, 98.45403))
sketch5.addConstraint(Sketcher.Constraint("DistanceY", 0, 2, 5, 3, 3.95338))
sketch5.addConstraint(Sketcher.Constraint("DistanceX", 1, 1, 4, 3, 19.387251))
pad3 = doc.addObject("PartDesign::Pad", "Pad002")
body3.addObject(pad3)
pad3.Profile = sketch5
pad3.Length = 2

doc.recompute()
